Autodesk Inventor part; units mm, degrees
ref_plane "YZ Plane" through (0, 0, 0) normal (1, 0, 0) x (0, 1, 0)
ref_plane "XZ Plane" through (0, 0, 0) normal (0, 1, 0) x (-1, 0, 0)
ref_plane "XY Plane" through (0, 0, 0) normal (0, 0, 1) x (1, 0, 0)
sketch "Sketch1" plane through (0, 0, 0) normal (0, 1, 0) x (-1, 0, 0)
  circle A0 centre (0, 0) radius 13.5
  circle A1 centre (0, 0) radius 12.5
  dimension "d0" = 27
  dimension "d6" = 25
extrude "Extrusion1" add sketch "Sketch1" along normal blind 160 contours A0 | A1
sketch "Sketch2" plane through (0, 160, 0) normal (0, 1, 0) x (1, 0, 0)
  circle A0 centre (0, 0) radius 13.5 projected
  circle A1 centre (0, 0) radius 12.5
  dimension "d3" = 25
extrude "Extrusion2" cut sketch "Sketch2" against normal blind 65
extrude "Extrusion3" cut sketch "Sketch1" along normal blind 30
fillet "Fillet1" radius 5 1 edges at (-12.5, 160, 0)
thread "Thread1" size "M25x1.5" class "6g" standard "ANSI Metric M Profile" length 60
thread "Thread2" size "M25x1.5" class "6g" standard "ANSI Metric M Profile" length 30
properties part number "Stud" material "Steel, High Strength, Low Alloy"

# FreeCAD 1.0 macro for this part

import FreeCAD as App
import Part
import Sketcher

V = App.Vector


def edges_at(feature, points):
    """Names of the edges that pass closest to the given points."""
    edges = feature.Shape.Edges
    near = lambda p: min(range(len(edges)), key=lambda i: edges[i].distToShape(Part.Vertex(*p))[0])
    return sorted({f"Edge{near(p) + 1}" for p in points})

doc = App.newDocument("Part")
params = doc.addObject("Spreadsheet::Sheet", "Params")
for row, (alias, value) in enumerate([
    ("sketch1_diameter", "27 mm"),
    ("pad1_length", "160 mm"),
    ("sketch2_diameter", "25 mm"),
    ("sketch2_diameter2", "27 mm"),
    ("pocket1_length", "65 mm"),
    ("sketch3_diameter", "27 mm"),
    ("sketch3_diameter2", "25 mm"),
    ("pocket2_length", "30 mm"),
    ("fillet_radius", "5 mm"),
], start=1):
    params.set(f"A{row}", alias)
    params.set(f"B{row}", "=" + value)
    params.setAlias(f"B{row}", alias)

body = doc.addObject("PartDesign::Body", "Body")

# Sketch on XZ plane
sketch1 = body.newObject("Sketcher::SketchObject", "Sketch")
sketch1.AttachmentSupport = (doc.getObject("XZ_Plane"), [""])
sketch1.MapMode = "FlatFace"
sketch1.addGeometry(Part.Circle(V(0, 0, 0), V(0, 0, 1), 14), False)
sketch1.addConstraint([
    Sketcher.Constraint("Coincident", 0, 3, -1, 1),
    Sketcher.Constraint("Diameter", 0, 27.0),
])
sketch1.setExpression("Constraints[1]", "Params.sketch1_diameter")
pad1 = body.newObject("PartDesign::Pad", "Pad")
pad1.Profile = sketch1
pad1.setExpression("Length", "Params.pad1_length")
pad1.Reversed = True

# Sketch on XZ plane
sketch2 = body.newObject("Sketcher::SketchObject", "Sketch001")
sketch2.AttachmentSupport = (doc.getObject("XZ_Plane"), [""])
sketch2.MapMode = "FlatFace"
sketch2.AttachmentOffset = App.Placement(V(0, 0, -160), App.Rotation())
sketch2.addGeometry([
    Part.Circle(V(0, 0, 0), V(0, 0, 1), 14),
    Part.Circle(V(0, 0, 0), V(0, 0, 1), 12),
], False)
sketch2.addConstraint([
    Sketcher.Constraint("Coincident", 0, 3, -1, 1),
    Sketcher.Constraint("Coincident", 1, 3, -1, 1),
    Sketcher.Constraint("Diameter", 1, 25.0),
    Sketcher.Constraint("Diameter", 0, 27.0),
])
sketch2.setExpression("Constraints[2]", "Params.sketch2_diameter")
sketch2.setExpression("Constraints[3]", "Params.sketch2_diameter2")
pocket1 = body.newObject("PartDesign::Pocket", "Pocket")
pocket1.Profile = sketch2
pocket1.setExpression("Length", "Params.pocket1_length")
pocket1.Reversed = True

# Sketch on XZ plane
sketch3 = body.newObject("Sketcher::SketchObject", "Sketch002")
sketch3.AttachmentSupport = (doc.getObject("XZ_Plane"), [""])
sketch3.MapMode = "FlatFace"
sketch3.addGeometry([
    Part.Circle(V(0, 0, 0), V(0, 0, 1), 14),
    Part.Circle(V(0, 0, 0), V(0, 0, 1), 12),
], False)
sketch3.addConstraint([
    Sketcher.Constraint("Coincident", 0, 3, -1, 1),
    Sketcher.Constraint("Coincident", 1, 3, -1, 1),
    Sketcher.Constraint("Diameter", 0, 27.0),
    Sketcher.Constraint("Diameter", 1, 25.0),
])
sketch3.setExpression("Constraints[2]", "Params.sketch3_diameter")
sketch3.setExpression("Constraints[3]", "Params.sketch3_diameter2")
pocket2 = body.newObject("PartDesign::Pocket", "Pocket001")
pocket2.Profile = sketch3
pocket2.setExpression("Length", "Params.pocket2_length")
doc.recompute()

fillet = body.newObject("PartDesign::Fillet", "Fillet")
fillet.Base = (pocket2, edges_at(pocket2, [(-12.5, 160, 0)]))
fillet.setExpression("Radius", "Params.fillet_radius")

doc.recompute()
